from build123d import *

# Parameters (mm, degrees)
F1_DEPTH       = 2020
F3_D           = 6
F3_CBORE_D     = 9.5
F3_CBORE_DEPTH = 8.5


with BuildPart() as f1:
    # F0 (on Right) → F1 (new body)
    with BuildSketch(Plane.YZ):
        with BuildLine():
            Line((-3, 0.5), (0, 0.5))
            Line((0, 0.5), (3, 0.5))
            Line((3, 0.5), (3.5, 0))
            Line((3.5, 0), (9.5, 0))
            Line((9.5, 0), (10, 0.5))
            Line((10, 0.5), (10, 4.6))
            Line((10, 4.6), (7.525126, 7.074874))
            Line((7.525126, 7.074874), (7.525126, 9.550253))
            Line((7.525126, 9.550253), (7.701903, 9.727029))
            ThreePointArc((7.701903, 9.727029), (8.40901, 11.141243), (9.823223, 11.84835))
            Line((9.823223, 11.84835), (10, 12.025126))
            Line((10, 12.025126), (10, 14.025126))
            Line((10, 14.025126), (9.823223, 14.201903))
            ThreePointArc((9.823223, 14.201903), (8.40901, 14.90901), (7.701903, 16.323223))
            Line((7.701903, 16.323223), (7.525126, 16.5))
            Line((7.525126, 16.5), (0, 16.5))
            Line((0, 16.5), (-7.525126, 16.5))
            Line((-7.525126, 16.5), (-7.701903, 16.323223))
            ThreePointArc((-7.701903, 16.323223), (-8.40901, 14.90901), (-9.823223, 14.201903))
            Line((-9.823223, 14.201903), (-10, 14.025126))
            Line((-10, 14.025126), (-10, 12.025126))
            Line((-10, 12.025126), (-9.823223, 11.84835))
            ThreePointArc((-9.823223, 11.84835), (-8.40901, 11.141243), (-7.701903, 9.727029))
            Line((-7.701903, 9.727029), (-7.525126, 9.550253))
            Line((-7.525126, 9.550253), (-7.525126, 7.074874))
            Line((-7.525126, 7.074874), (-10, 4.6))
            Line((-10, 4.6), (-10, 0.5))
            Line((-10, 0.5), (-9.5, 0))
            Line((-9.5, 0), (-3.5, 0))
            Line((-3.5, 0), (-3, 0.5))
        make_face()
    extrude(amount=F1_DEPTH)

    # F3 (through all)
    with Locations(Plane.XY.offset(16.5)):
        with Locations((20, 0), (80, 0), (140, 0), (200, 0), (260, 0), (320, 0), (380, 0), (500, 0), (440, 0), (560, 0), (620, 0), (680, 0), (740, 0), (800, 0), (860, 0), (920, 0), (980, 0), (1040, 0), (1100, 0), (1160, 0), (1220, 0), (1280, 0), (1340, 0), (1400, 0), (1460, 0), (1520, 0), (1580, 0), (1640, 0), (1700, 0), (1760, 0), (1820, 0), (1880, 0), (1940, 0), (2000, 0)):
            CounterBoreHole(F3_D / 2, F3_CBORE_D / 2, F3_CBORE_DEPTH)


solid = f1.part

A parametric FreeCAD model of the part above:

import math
import FreeCAD as App
import Part
import Sketcher
from FreeCAD import Vector
Q = App.Units.Quantity

doc = App.newDocument("Part")
params = doc.addObject("Spreadsheet::Sheet", "Params")
for row, (alias, value) in enumerate([
    ("sketch1_radius", "2.500001 mm"),
    ("sketch1_width", "6 mm"),
    ("sketch1_height", "2 mm"),
    ("sketch1_height2", "4.1 mm"),
    ("sketch1_length", "3.5 mm"),
    ("pad1_length", "2020 mm"),
    ("sketch2_diameter", "6 mm"),
    ("hole_diameter", "6 mm"),
    ("hole_cbore_diameter", "9.5 mm"),
    ("hole_cbore_depth", "8.5 mm"),
], start=1):
    params.set(f"A{row}", alias)
    params.set(f"B{row}", "=" + value)
    params.setAlias(f"B{row}", alias)

body = doc.addObject("PartDesign::Body", "Body")

# Sketch on YZ plane
sketch1 = doc.addObject("Sketcher::SketchObject", "Sketch")
body.addObject(sketch1)
sketch1.AttachmentSupport = (doc.YZ_Plane, [""])
sketch1.MapMode = "FlatFace"
sketch1.addGeometry([
    Part.LineSegment(Vector(-3, 0.5, 0), Vector(3, 0.5, 0)),  # 0
    Part.LineSegment(Vector(3, 0.5, 0), Vector(3.5, 0, 0)),  # 1
    Part.LineSegment(Vector(3.5, 0, 0), Vector(9.5, 0, 0)),  # 2
    Part.LineSegment(Vector(9.5, 0, 0), Vector(10, 0.5, 0)),  # 3
    Part.LineSegment(Vector(10, 0.5, 0), Vector(10, 4.6, 0)),  # 4
    Part.LineSegment(Vector(10, 4.6, 0), Vector(7.525126, 7.074874, 0)),  # 5
    Part.LineSegment(Vector(7.525126, 7.074874, 0), Vector(7.525126, 9.550253, 0)),  # 6
    Part.LineSegment(Vector(7.525126, 9.550253, 0), Vector(7.701903, 9.727029, 0)),  # 7
    Part.ArcOfCircle(Part.Circle(Vector(10.176778, 9.373475, 0), Vector(0, 0, 1), 2.500001), math.radians(98.130132), math.radians(171.869895)),  # 8
    Part.LineSegment(Vector(9.823223, 11.84835, 0), Vector(10, 12.025126, 0)),  # 9
    Part.LineSegment(Vector(10, 12.025126, 0), Vector(10, 14.025126, 0)),  # 10
    Part.LineSegment(Vector(10, 14.025126, 0), Vector(9.823223, 14.201903, 0)),  # 11
    Part.ArcOfCircle(Part.Circle(Vector(10.176778, 16.676778, 0), Vector(0, 0, 1), 2.500001), math.radians(-171.869865), math.radians(-98.130135)),  # 12
    Part.LineSegment(Vector(7.701903, 16.323223, 0), Vector(7.525126, 16.5, 0)),  # 13
    Part.LineSegment(Vector(7.525126, 16.5, 0), Vector(-7.525126, 16.5, 0)),  # 14
    Part.LineSegment(Vector(-7.525126, 16.5, 0), Vector(-7.701903, 16.323223, 0)),  # 15
    Part.ArcOfCircle(Part.Circle(Vector(-10.176778, 16.676778, 0), Vector(0, 0, 1), 2.500001), math.radians(-81.869865), math.radians(-8.130135)),  # 16
    Part.LineSegment(Vector(-9.823223, 14.201903, 0), Vector(-10, 14.025126, 0)),  # 17
    Part.LineSegment(Vector(-10, 14.025126, 0), Vector(-10, 12.025126, 0)),  # 18
    Part.LineSegment(Vector(-10, 12.025126, 0), Vector(-9.823223, 11.84835, 0)),  # 19
    Part.ArcOfCircle(Part.Circle(Vector(-10.176778, 9.373475, 0), Vector(0, 0, 1), 2.500001), math.radians(8.130105), math.radians(81.869868)),  # 20
    Part.LineSegment(Vector(-7.701903, 9.727029, 0), Vector(-7.525126, 9.550253, 0)),  # 21
    Part.LineSegment(Vector(-7.525126, 9.550253, 0), Vector(-7.525126, 7.074874, 0)),  # 22
    Part.LineSegment(Vector(-7.525126, 7.074874, 0), Vector(-10, 4.6, 0)),  # 23
    Part.LineSegment(Vector(-10, 4.6, 0), Vector(-10, 0.5, 0)),  # 24
    Part.LineSegment(Vector(-10, 0.5, 0), Vector(-9.5, 0, 0)),  # 25
    Part.LineSegment(Vector(-9.5, 0, 0), Vector(-3.5, 0, 0)),  # 26
    Part.LineSegment(Vector(-3.5, 0, 0), Vector(-3, 0.5, 0)),  # 27
], False)
sketch1.addConstraint([
    Sketcher.Constraint("Coincident", 0, 2, 1, 1),
    Sketcher.Constraint("Coincident", 1, 2, 2, 1),
    Sketcher.Constraint("Coincident", 2, 2, 3, 1),
    Sketcher.Constraint("Coincident", 3, 2, 4, 1),
    Sketcher.Constraint("Coincident", 4, 2, 5, 1),
    Sketcher.Constraint("Coincident", 5, 2, 6, 1),
    Sketcher.Constraint("Coincident", 6, 2, 7, 1),
    Sketcher.Constraint("Coincident", 7, 2, 8, 2),
    Sketcher.Constraint("Coincident", 8, 1, 9, 1),
    Sketcher.Constraint("Coincident", 9, 2, 10, 1),
    Sketcher.Constraint("Coincident", 10, 2, 11, 1),
    Sketcher.Constraint("Coincident", 11, 2, 12, 2),
    Sketcher.Constraint("Coincident", 12, 1, 13, 1),
    Sketcher.Constraint("Coincident", 13, 2, 14, 1),
    Sketcher.Constraint("Coincident", 14, 2, 15, 1),
    Sketcher.Constraint("Coincident", 15, 2, 16, 2),
    Sketcher.Constraint("Coincident", 16, 1, 17, 1),
    Sketcher.Constraint("Coincident", 17, 2, 18, 1),
    Sketcher.Constraint("Coincident", 18, 2, 19, 1),
    Sketcher.Constraint("Coincident", 19, 2, 20, 2),
    Sketcher.Constraint("Coincident", 20, 1, 21, 1),
    Sketcher.Constraint("Coincident", 21, 2, 22, 1),
    Sketcher.Constraint("Coincident", 22, 2, 23, 1),
    Sketcher.Constraint("Coincident", 23, 2, 24, 1),
    Sketcher.Constraint("Coincident", 24, 2, 25, 1),
    Sketcher.Constraint("Coincident", 25, 2, 26, 1),
    Sketcher.Constraint("Coincident", 26, 2, 27, 1),
    Sketcher.Constraint("Coincident", 27, 2, 0, 1),
    Sketcher.Constraint("Horizontal", 0),
    Sketcher.Constraint("Horizontal", 2),
    Sketcher.Constraint("Vertical", 4),
    Sketcher.Constraint("Vertical", 6),
    Sketcher.Constraint("Vertical", 10),
    Sketcher.Constraint("Horizontal", 14),
    Sketcher.Constraint("Vertical", 18),
    Sketcher.Constraint("Vertical", 22),
    Sketcher.Constraint("Vertical", 24),
    Sketcher.Constraint("Horizontal", 26),
    Sketcher.Constraint("Equal", 8, 12),
    Sketcher.Constraint("Equal", 12, 16),
    Sketcher.Constraint("Equal", 16, 20),
    Sketcher.Constraint("Symmetric", 2, 2, 25, 2, -1, 1),
    Sketcher.Constraint("Symmetric", 12, 3, 16, 3, -2),
    Sketcher.Constraint("Symmetric", 8, 3, 20, 3, -2),
    Sketcher.Constraint("Symmetric", 10, 2, 17, 2, -2),
    Sketcher.Constraint("Symmetric", 6, 2, 21, 2, -2),
    Sketcher.Constraint("Symmetric", 4, 2, 23, 2, -2),
    Sketcher.Constraint("Symmetric", 1, 2, 26, 2, -2),
    Sketcher.Constraint("Perpendicular", 1, 3),
    Sketcher.Constraint("Perpendicular", 3, 5),
    Sketcher.Constraint("Parallel", 7, 9),
    Sketcher.Constraint("Parallel", 5, 11),
    Sketcher.Constraint("Parallel", 11, 13),
    Sketcher.Constraint("Perpendicular", 13, 15),
    Sketcher.Constraint("Parallel", 15, 17),
    Sketcher.Constraint("Parallel", 19, 21),
    Sketcher.Constraint("Parallel", 17, 23),
    Sketcher.Constraint("Perpendicular", 23, 25),
    Sketcher.Constraint("Perpendicular", 25, 27),
    Sketcher.Constraint("Horizontal", 0, 2, 3, 2),
    Sketcher.Constraint("Horizontal", 12, 1, 15, 2),
    Sketcher.Constraint("Horizontal", 11, 2, 16, 1),
    Sketcher.Constraint("Horizontal", 9, 2, 18, 2),
    Sketcher.Constraint("Horizontal", 8, 1, 19, 2),
    Sketcher.Constraint("Vertical", 8, 3, 12, 3),
    Sketcher.Constraint("Vertical", 4, 2, 9, 2),
    Sketcher.Constraint("Vertical", 8, 1, 11, 2),
    Sketcher.Constraint("Vertical", 7, 2, 12, 1),
    Sketcher.Constraint("Vertical", 6, 2, 13, 2),
    Sketcher.Constraint("Equal", 0, 2),
    Sketcher.Constraint("Equal", 7, 9),
    Sketcher.Constraint("Equal", 9, 11),
    Sketcher.Constraint("Radius", 8, Q("2.500001 mm")),
    Sketcher.Constraint("DistanceX", 0, 1, 0, 2, Q("6 mm")),
    Sketcher.Constraint("DistanceY", 10, 1, 10, 2, Q("2 mm")),
    Sketcher.Constraint("DistanceY", 4, 1, 4, 2, Q("4.1 mm")),
    Sketcher.Constraint("DistanceX", -1, 1, 3, 2, Q("10 mm")),
    Sketcher.Constraint("Distance", 5, Q("3.5 mm")),
    Sketcher.Constraint("DistanceY", -1, 1, 13, 2, Q("16.5 mm")),
    Sketcher.Constraint("Distance", 7, Q("0.25 mm")),
    Sketcher.Constraint("DistanceY", 6, 1, 6, 2, Q("2.475379 mm")),
])
sketch1.setExpression("Constraints[72]", "Params.sketch1_radius")
sketch1.setExpression("Constraints[73]", "Params.sketch1_width")
sketch1.setExpression("Constraints[74]", "Params.sketch1_height")
sketch1.setExpression("Constraints[75]", "Params.sketch1_height2")
sketch1.setExpression("Constraints[77]", "Params.sketch1_length")
pad1 = doc.addObject("PartDesign::Pad", "Pad")
body.addObject(pad1)
pad1.Profile = sketch1
pad1.setExpression("Length", "Params.pad1_length")

# Sketch on XY plane
sketch2 = doc.addObject("Sketcher::SketchObject", "Sketch001")
body.addObject(sketch2)
sketch2.AttachmentSupport = (doc.XY_Plane, [""])
sketch2.MapMode = "FlatFace"
sketch2.AttachmentOffset = App.Placement(Vector(0, 0, 16.5), App.Rotation())
sketch2.addGeometry([
    Part.Circle(Vector(20, 0, 0), Vector(0, 0, 1), 3),  # 0
    Part.Circle(Vector(80, 0, 0), Vector(0, 0, 1), 3),  # 1
    Part.Circle(Vector(140, 0, 0), Vector(0, 0, 1), 3),  # 2
    Part.Circle(Vector(200, 0, 0), Vector(0, 0, 1), 3),  # 3
    Part.Circle(Vector(260, 0, 0), Vector(0, 0, 1), 3),  # 4
    Part.Circle(Vector(320, 0, 0), Vector(0, 0, 1), 3),  # 5
    Part.Circle(Vector(380, 0, 0), Vector(0, 0, 1), 3),  # 6
    Part.Circle(Vector(500, 0, 0), Vector(0, 0, 1), 3),  # 7
    Part.Circle(Vector(440, 0, 0), Vector(0, 0, 1), 3),  # 8
    Part.Circle(Vector(560, 0, 0), Vector(0, 0, 1), 3),  # 9
    Part.Circle(Vector(620, 0, 0), Vector(0, 0, 1), 3),  # 10
    Part.Circle(Vector(680, 0, 0), Vector(0, 0, 1), 3),  # 11
    Part.Circle(Vector(740, 0, 0), Vector(0, 0, 1), 3),  # 12
    Part.Circle(Vector(800, 0, 0), Vector(0, 0, 1), 3),  # 13
    Part.Circle(Vector(860, 0, 0), Vector(0, 0, 1), 3),  # 14
    Part.Circle(Vector(920, 0, 0), Vector(0, 0, 1), 3),  # 15
    Part.Circle(Vector(980, 0, 0), Vector(0, 0, 1), 3),  # 16
    Part.Circle(Vector(1040, 0, 0), Vector(0, 0, 1), 3),  # 17
    Part.Circle(Vector(1100, 0, 0), Vector(0, 0, 1), 3),  # 18
    Part.Circle(Vector(1160, 0, 0), Vector(0, 0, 1), 3),  # 19
    Part.Circle(Vector(1220, 0, 0), Vector(0, 0, 1), 3),  # 20
    Part.Circle(Vector(1280, 0, 0), Vector(0, 0, 1), 3),  # 21
    Part.Circle(Vector(1340, 0, 0), Vector(0, 0, 1), 3),  # 22
    Part.Circle(Vector(1400, 0, 0), Vector(0, 0, 1), 3),  # 23
    Part.Circle(Vector(1460, 0, 0), Vector(0, 0, 1), 3),  # 24
    Part.Circle(Vector(1520, 0, 0), Vector(0, 0, 1), 3),  # 25
    Part.Circle(Vector(1580, 0, 0), Vector(0, 0, 1), 3),  # 26
    Part.Circle(Vector(1640, 0, 0), Vector(0, 0, 1), 3),  # 27
    Part.Circle(Vector(1700, 0, 0), Vector(0, 0, 1), 3),  # 28
    Part.Circle(Vector(1760, 0, 0), Vector(0, 0, 1), 3),  # 29
    Part.Circle(Vector(1820, 0, 0), Vector(0, 0, 1), 3),  # 30
    Part.Circle(Vector(1880, 0, 0), Vector(0, 0, 1), 3),  # 31
    Part.Circle(Vector(1940, 0, 0), Vector(0, 0, 1), 3),  # 32
    Part.Circle(Vector(2000, 0, 0), Vector(0, 0, 1), 3),  # 33
], False)
sketch2.addConstraint([
    Sketcher.Constraint("Equal", 0, 1),
    Sketcher.Constraint("Equal", 1, 2),
    Sketcher.Constraint("Equal", 2, 3),
    Sketcher.Constraint("Equal", 3, 4),
    Sketcher.Constraint("Equal", 4, 5),
    Sketcher.Constraint("Equal", 5, 6),
    Sketcher.Constraint("Equal", 6, 7),
    Sketcher.Constraint("Equal", 7, 8),
    Sketcher.Constraint("Equal", 8, 9),
    Sketcher.Constraint("Equal", 9, 10),
    Sketcher.Constraint("Equal", 10, 11),
    Sketcher.Constraint("Equal", 11, 12),
    Sketcher.Constraint("Equal", 12, 13),
    Sketcher.Constraint("Equal", 13, 14),
    Sketcher.Constraint("Equal", 14, 15),
    Sketcher.Constraint("Equal", 15, 16),
    Sketcher.Constraint("Equal", 16, 17),
    Sketcher.Constraint("Equal", 17, 18),
    Sketcher.Constraint("Equal", 18, 19),
    Sketcher.Constraint("Equal", 19, 20),
    Sketcher.Constraint("Equal", 20, 21),
    Sketcher.Constraint("Equal", 21, 22),
    Sketcher.Constraint("Equal", 22, 23),
    Sketcher.Constraint("Equal", 23, 24),
    Sketcher.Constraint("Equal", 24, 25),
    Sketcher.Constraint("Equal", 25, 26),
    Sketcher.Constraint("Equal", 26, 27),
    Sketcher.Constraint("Equal", 27, 28),
    Sketcher.Constraint("Equal", 28, 29),
    Sketcher.Constraint("Equal", 29, 30),
    Sketcher.Constraint("Equal", 30, 31),
    Sketcher.Constraint("Equal", 31, 32),
    Sketcher.Constraint("Equal", 32, 33),
    Sketcher.Constraint("PointOnObject", 0, 3, -1),
    Sketcher.Constraint("PointOnObject", 1, 3, -1),
    Sketcher.Constraint("PointOnObject", 2, 3, -1),
    Sketcher.Constraint("PointOnObject", 3, 3, -1),
    Sketcher.Constraint("PointOnObject", 4, 3, -1),
    Sketcher.Constraint("PointOnObject", 5, 3, -1),
    Sketcher.Constraint("PointOnObject", 6, 3, -1),
    Sketcher.Constraint("PointOnObject", 7, 3, -1),
    Sketcher.Constraint("PointOnObject", 8, 3, -1),
    Sketcher.Constraint("PointOnObject", 9, 3, -1),
    Sketcher.Constraint("PointOnObject", 10, 3, -1),
    Sketcher.Constraint("PointOnObject", 11, 3, -1),
    Sketcher.Constraint("PointOnObject", 12, 3, -1),
    Sketcher.Constraint("PointOnObject", 13, 3, -1),
    Sketcher.Constraint("PointOnObject", 14, 3, -1),
    Sketcher.Constraint("PointOnObject", 15, 3, -1),
    Sketcher.Constraint("PointOnObject", 16, 3, -1),
    Sketcher.Constraint("PointOnObject", 17, 3, -1),
    Sketcher.Constraint("PointOnObject", 18, 3, -1),
    Sketcher.Constraint("PointOnObject", 19, 3, -1),
    Sketcher.Constraint("PointOnObject", 20, 3, -1),
    Sketcher.Constraint("PointOnObject", 21, 3, -1),
    Sketcher.Constraint("PointOnObject", 22, 3, -1),
    Sketcher.Constraint("PointOnObject", 23, 3, -1),
    Sketcher.Constraint("PointOnObject", 24, 3, -1),
    Sketcher.Constraint("PointOnObject", 25, 3, -1),
    Sketcher.Constraint("PointOnObject", 26, 3, -1),
    Sketcher.Constraint("PointOnObject", 27, 3, -1),
    Sketcher.Constraint("PointOnObject", 28, 3, -1),
    Sketcher.Constraint("PointOnObject", 29, 3, -1),
    Sketcher.Constraint("PointOnObject", 30, 3, -1),
    Sketcher.Constraint("PointOnObject", 31, 3, -1),
    Sketcher.Constraint("PointOnObject", 32, 3, -1),
    Sketcher.Constraint("PointOnObject", 33, 3, -1),
    Sketcher.Constraint("Diameter", 0, Q("6 mm")),
    Sketcher.Constraint("DistanceX", -1, 1, 0, 3, Q("20 mm")),
    Sketcher.Constraint("DistanceX", -1, 1, 1, 3, Q("80 mm")),
    Sketcher.Constraint("DistanceX", -1, 1, 2, 3, Q("140 mm")),
    Sketcher.Constraint("DistanceX", -1, 1, 3, 3, Q("200 mm")),
    Sketcher.Constraint("DistanceX", -1, 1, 4, 3, Q("260 mm")),
    Sketcher.Constraint("DistanceX", -1, 1, 5, 3, Q("320 mm")),
    Sketcher.Constraint("DistanceX", -1, 1, 6, 3, Q("380 mm")),
    Sketcher.Constraint("DistanceX", -1, 1, 7, 3, Q("500 mm")),
    Sketcher.Constraint("DistanceX", -1, 1, 8, 3, Q("440 mm")),
    Sketcher.Constraint("DistanceX", -1, 1, 9, 3, Q("560 mm")),
    Sketcher.Constraint("DistanceX", -1, 1, 10, 3, Q("620 mm")),
    Sketcher.Constraint("DistanceX", -1, 1, 11, 3, Q("680 mm")),
    Sketcher.Constraint("DistanceX", -1, 1, 12, 3, Q("740 mm")),
    Sketcher.Constraint("DistanceX", -1, 1, 13, 3, Q("800 mm")),
    Sketcher.Constraint("DistanceX", -1, 1, 14, 3, Q("860 mm")),
    Sketcher.Constraint("DistanceX", -1, 1, 15, 3, Q("920 mm")),
    Sketcher.Constraint("DistanceX", -1, 1, 16, 3, Q("980 mm")),
    Sketcher.Constraint("DistanceX", -1, 1, 17, 3, Q("1040 mm")),
    Sketcher.Constraint("DistanceX", -1, 1, 18, 3, Q("1100 mm")),
    Sketcher.Constraint("DistanceX", -1, 1, 19, 3, Q("1160 mm")),
    Sketcher.Constraint("DistanceX", -1, 1, 20, 3, Q("1220 mm")),
    Sketcher.Constraint("DistanceX", -1, 1, 21, 3, Q("1280 mm")),
    Sketcher.Constraint("DistanceX", -1, 1, 22, 3, Q("1340 mm")),
    Sketcher.Constraint("DistanceX", -1, 1, 23, 3, Q("1400 mm")),
    Sketcher.Constraint("DistanceX", -1, 1, 24, 3, Q("1460 mm")),
    Sketcher.Constraint("DistanceX", -1, 1, 25, 3, Q("1520 mm")),
    Sketcher.Constraint("DistanceX", -1, 1, 26, 3, Q("1580 mm")),
    Sketcher.Constraint("DistanceX", -1, 1, 27, 3, Q("1640 mm")),
    Sketcher.Constraint("DistanceX", -1, 1, 28, 3, Q("1700 mm")),
    Sketcher.Constraint("DistanceX", -1, 1, 29, 3, Q("1760 mm")),
    Sketcher.Constraint("DistanceX", -1, 1, 30, 3, Q("1820 mm")),
    Sketcher.Constraint("DistanceX", -1, 1, 31, 3, Q("1880 mm")),
    Sketcher.Constraint("DistanceX", -1, 1, 32, 3, Q("1940 mm")),
    Sketcher.Constraint("DistanceX", -1, 1, 33, 3, Q("2000 mm")),
])
sketch2.setExpression("Constraints[67]", "Params.sketch2_diameter")
doc.recompute()
hole = doc.addObject("PartDesign::Hole", "Hole")
body.addObject(hole)
hole.Profile = sketch2
hole.ThreadType = "None"
hole.setExpression("Diameter", "Params.hole_diameter")
hole.DepthType = "ThroughAll"
hole.HoleCutType = "Counterbore"
hole.setExpression("HoleCutDiameter", "Params.hole_cbore_diameter")
hole.setExpression("HoleCutDepth", "Params.hole_cbore_depth")

doc.recompute()
